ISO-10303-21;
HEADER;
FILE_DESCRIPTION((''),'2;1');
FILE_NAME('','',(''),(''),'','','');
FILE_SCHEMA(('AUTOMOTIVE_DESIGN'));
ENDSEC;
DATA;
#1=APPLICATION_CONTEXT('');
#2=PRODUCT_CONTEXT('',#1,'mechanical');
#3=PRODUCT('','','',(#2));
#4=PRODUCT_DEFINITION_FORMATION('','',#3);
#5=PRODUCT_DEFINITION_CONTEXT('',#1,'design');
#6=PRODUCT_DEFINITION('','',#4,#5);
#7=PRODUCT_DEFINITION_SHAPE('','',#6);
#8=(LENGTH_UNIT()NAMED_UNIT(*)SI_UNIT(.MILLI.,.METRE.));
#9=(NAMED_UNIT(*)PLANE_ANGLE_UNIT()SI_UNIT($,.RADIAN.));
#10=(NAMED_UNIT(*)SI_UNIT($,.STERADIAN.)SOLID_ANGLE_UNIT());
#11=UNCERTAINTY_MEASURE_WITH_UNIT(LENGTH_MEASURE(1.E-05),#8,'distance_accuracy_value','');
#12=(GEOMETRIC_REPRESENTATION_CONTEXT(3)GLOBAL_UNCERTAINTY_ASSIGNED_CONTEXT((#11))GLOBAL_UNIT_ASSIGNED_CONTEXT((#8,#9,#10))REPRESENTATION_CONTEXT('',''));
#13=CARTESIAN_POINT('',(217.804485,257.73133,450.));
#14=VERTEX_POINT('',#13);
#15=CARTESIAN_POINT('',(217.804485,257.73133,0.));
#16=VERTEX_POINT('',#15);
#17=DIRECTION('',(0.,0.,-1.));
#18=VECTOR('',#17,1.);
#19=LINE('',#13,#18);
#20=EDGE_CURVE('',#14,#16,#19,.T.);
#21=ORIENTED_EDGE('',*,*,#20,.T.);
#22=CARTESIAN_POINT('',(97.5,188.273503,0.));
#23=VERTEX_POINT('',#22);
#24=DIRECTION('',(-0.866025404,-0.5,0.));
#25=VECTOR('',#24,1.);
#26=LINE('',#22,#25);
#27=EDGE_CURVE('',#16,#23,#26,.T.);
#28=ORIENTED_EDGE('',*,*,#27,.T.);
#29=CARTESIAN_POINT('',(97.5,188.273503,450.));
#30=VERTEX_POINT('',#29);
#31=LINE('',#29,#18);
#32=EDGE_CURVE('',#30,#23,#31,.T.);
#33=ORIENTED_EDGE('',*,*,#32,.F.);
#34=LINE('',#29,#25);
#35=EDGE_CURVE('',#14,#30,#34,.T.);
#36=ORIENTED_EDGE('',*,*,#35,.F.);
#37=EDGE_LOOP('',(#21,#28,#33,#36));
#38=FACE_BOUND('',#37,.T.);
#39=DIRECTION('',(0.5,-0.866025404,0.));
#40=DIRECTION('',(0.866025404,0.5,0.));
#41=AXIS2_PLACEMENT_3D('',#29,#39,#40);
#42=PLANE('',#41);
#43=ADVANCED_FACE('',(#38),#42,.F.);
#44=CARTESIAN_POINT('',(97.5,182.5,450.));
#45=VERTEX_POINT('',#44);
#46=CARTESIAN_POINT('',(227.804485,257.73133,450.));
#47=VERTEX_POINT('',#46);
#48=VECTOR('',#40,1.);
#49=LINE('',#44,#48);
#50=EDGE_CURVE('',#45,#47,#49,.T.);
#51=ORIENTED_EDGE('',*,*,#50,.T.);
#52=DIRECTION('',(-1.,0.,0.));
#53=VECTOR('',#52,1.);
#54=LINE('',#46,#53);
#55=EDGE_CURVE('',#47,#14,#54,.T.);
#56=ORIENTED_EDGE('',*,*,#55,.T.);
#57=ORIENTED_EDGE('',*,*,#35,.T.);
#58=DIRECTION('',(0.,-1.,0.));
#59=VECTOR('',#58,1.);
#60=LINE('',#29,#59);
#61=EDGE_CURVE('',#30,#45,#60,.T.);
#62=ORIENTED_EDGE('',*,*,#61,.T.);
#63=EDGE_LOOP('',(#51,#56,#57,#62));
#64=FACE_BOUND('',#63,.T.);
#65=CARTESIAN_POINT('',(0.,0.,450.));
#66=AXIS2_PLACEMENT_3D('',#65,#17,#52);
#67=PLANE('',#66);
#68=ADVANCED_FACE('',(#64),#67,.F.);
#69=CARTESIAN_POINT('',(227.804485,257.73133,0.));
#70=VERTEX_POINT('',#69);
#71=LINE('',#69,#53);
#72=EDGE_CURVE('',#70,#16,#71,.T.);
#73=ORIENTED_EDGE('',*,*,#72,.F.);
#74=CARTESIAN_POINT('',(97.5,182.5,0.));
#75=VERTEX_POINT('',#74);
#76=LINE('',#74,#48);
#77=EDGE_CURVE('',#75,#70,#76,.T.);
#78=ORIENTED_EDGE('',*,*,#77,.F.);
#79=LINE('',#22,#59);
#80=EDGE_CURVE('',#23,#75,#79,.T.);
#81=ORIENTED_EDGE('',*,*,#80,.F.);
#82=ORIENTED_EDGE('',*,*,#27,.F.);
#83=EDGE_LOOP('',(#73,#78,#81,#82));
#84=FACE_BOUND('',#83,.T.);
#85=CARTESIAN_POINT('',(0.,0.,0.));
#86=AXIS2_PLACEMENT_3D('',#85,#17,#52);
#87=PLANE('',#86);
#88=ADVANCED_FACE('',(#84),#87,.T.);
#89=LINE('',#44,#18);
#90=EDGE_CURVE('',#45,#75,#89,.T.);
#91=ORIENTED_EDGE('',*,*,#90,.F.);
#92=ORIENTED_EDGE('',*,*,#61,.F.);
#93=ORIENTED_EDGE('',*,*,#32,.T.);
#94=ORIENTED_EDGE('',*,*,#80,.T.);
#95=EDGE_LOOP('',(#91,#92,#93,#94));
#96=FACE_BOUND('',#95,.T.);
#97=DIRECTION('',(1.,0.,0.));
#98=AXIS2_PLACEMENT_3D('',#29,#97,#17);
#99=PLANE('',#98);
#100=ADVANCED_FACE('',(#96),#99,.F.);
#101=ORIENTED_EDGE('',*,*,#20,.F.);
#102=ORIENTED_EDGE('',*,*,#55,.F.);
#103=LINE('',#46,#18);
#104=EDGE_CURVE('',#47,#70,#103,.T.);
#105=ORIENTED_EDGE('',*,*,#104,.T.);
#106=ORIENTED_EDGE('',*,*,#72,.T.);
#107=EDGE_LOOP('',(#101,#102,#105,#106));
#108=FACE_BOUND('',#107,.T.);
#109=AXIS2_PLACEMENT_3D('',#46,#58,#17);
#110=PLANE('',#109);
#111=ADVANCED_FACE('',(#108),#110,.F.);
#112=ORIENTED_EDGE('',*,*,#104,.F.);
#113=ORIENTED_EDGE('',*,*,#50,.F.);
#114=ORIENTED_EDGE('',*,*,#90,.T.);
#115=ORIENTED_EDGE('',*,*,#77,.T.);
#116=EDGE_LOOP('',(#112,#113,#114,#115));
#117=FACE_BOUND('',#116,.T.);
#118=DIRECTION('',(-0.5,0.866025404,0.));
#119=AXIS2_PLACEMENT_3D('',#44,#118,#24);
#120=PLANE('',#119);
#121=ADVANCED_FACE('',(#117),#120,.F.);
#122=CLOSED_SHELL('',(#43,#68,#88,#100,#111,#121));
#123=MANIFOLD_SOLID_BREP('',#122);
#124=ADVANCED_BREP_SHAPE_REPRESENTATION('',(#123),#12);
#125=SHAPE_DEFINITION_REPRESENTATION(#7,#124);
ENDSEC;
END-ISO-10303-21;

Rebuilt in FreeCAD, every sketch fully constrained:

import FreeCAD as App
import Part
import Sketcher
from FreeCAD import Vector
Q = App.Units.Quantity


def add_polygon(sketch, points):
    """Adds a closed chain of lines whose ends are joined by coincident constraints."""
    first, n = sketch.GeometryCount, len(points)
    for a, b in zip(points, points[1:] + points[:1]):
        sketch.addGeometry(Part.LineSegment(App.Vector(*a, 0), App.Vector(*b, 0)), False)
    for i in range(n):
        sketch.addConstraint(Sketcher.Constraint("Coincident", first + i, 2, first + (i + 1) % n, 1))

doc = App.newDocument("Part")
params = doc.addObject("Spreadsheet::Sheet", "Params")
for row, (alias, value) in enumerate([
    ("sketch1_width", "10 mm"),
    ("pad1_length", "450 mm"),
], start=1):
    params.set(f"A{row}", alias)
    params.set(f"B{row}", "=" + value)
    params.setAlias(f"B{row}", alias)

body = doc.addObject("PartDesign::Body", "Body")

# Sketch on XY plane
sketch1 = body.newObject("Sketcher::SketchObject", "Sketch")
sketch1.AttachmentSupport = (doc.getObject("XY_Plane"), [""])
sketch1.MapMode = "FlatFace"
add_polygon(sketch1, [(227.804485, 257.73133), (217.804485, 257.73133), (97.5, 188.273503), (97.5, 182.5)])  # lines 0-3
sketch1.addConstraint(Sketcher.Constraint("Horizontal", 0))
sketch1.addConstraint(Sketcher.Constraint("Vertical", 2))
sketch1.addConstraint(Sketcher.Constraint("Parallel", 1, 3))
sketch1.addConstraint(Sketcher.Constraint("DistanceX", 0, 2, 0, 1, Q("10 mm")))
sketch1.addConstraint(Sketcher.Constraint("Angle", 1, Q("-150 deg")))
sketch1.addConstraint(Sketcher.Constraint("DistanceX", -1, 1, 1, 2, Q("97.5 mm")))
sketch1.addConstraint(Sketcher.Constraint("DistanceY", -1, 1, 2, 2, Q("182.5 mm")))
sketch1.addConstraint(Sketcher.Constraint("Distance", 3, Q("150.462659 mm")))
sketch1.setExpression("Constraints[7]", "Params.sketch1_width")
pad1 = body.newObject("PartDesign::Pad", "Pad")
pad1.Profile = sketch1
pad1.setExpression("Length", "Params.pad1_length")

doc.recompute()
